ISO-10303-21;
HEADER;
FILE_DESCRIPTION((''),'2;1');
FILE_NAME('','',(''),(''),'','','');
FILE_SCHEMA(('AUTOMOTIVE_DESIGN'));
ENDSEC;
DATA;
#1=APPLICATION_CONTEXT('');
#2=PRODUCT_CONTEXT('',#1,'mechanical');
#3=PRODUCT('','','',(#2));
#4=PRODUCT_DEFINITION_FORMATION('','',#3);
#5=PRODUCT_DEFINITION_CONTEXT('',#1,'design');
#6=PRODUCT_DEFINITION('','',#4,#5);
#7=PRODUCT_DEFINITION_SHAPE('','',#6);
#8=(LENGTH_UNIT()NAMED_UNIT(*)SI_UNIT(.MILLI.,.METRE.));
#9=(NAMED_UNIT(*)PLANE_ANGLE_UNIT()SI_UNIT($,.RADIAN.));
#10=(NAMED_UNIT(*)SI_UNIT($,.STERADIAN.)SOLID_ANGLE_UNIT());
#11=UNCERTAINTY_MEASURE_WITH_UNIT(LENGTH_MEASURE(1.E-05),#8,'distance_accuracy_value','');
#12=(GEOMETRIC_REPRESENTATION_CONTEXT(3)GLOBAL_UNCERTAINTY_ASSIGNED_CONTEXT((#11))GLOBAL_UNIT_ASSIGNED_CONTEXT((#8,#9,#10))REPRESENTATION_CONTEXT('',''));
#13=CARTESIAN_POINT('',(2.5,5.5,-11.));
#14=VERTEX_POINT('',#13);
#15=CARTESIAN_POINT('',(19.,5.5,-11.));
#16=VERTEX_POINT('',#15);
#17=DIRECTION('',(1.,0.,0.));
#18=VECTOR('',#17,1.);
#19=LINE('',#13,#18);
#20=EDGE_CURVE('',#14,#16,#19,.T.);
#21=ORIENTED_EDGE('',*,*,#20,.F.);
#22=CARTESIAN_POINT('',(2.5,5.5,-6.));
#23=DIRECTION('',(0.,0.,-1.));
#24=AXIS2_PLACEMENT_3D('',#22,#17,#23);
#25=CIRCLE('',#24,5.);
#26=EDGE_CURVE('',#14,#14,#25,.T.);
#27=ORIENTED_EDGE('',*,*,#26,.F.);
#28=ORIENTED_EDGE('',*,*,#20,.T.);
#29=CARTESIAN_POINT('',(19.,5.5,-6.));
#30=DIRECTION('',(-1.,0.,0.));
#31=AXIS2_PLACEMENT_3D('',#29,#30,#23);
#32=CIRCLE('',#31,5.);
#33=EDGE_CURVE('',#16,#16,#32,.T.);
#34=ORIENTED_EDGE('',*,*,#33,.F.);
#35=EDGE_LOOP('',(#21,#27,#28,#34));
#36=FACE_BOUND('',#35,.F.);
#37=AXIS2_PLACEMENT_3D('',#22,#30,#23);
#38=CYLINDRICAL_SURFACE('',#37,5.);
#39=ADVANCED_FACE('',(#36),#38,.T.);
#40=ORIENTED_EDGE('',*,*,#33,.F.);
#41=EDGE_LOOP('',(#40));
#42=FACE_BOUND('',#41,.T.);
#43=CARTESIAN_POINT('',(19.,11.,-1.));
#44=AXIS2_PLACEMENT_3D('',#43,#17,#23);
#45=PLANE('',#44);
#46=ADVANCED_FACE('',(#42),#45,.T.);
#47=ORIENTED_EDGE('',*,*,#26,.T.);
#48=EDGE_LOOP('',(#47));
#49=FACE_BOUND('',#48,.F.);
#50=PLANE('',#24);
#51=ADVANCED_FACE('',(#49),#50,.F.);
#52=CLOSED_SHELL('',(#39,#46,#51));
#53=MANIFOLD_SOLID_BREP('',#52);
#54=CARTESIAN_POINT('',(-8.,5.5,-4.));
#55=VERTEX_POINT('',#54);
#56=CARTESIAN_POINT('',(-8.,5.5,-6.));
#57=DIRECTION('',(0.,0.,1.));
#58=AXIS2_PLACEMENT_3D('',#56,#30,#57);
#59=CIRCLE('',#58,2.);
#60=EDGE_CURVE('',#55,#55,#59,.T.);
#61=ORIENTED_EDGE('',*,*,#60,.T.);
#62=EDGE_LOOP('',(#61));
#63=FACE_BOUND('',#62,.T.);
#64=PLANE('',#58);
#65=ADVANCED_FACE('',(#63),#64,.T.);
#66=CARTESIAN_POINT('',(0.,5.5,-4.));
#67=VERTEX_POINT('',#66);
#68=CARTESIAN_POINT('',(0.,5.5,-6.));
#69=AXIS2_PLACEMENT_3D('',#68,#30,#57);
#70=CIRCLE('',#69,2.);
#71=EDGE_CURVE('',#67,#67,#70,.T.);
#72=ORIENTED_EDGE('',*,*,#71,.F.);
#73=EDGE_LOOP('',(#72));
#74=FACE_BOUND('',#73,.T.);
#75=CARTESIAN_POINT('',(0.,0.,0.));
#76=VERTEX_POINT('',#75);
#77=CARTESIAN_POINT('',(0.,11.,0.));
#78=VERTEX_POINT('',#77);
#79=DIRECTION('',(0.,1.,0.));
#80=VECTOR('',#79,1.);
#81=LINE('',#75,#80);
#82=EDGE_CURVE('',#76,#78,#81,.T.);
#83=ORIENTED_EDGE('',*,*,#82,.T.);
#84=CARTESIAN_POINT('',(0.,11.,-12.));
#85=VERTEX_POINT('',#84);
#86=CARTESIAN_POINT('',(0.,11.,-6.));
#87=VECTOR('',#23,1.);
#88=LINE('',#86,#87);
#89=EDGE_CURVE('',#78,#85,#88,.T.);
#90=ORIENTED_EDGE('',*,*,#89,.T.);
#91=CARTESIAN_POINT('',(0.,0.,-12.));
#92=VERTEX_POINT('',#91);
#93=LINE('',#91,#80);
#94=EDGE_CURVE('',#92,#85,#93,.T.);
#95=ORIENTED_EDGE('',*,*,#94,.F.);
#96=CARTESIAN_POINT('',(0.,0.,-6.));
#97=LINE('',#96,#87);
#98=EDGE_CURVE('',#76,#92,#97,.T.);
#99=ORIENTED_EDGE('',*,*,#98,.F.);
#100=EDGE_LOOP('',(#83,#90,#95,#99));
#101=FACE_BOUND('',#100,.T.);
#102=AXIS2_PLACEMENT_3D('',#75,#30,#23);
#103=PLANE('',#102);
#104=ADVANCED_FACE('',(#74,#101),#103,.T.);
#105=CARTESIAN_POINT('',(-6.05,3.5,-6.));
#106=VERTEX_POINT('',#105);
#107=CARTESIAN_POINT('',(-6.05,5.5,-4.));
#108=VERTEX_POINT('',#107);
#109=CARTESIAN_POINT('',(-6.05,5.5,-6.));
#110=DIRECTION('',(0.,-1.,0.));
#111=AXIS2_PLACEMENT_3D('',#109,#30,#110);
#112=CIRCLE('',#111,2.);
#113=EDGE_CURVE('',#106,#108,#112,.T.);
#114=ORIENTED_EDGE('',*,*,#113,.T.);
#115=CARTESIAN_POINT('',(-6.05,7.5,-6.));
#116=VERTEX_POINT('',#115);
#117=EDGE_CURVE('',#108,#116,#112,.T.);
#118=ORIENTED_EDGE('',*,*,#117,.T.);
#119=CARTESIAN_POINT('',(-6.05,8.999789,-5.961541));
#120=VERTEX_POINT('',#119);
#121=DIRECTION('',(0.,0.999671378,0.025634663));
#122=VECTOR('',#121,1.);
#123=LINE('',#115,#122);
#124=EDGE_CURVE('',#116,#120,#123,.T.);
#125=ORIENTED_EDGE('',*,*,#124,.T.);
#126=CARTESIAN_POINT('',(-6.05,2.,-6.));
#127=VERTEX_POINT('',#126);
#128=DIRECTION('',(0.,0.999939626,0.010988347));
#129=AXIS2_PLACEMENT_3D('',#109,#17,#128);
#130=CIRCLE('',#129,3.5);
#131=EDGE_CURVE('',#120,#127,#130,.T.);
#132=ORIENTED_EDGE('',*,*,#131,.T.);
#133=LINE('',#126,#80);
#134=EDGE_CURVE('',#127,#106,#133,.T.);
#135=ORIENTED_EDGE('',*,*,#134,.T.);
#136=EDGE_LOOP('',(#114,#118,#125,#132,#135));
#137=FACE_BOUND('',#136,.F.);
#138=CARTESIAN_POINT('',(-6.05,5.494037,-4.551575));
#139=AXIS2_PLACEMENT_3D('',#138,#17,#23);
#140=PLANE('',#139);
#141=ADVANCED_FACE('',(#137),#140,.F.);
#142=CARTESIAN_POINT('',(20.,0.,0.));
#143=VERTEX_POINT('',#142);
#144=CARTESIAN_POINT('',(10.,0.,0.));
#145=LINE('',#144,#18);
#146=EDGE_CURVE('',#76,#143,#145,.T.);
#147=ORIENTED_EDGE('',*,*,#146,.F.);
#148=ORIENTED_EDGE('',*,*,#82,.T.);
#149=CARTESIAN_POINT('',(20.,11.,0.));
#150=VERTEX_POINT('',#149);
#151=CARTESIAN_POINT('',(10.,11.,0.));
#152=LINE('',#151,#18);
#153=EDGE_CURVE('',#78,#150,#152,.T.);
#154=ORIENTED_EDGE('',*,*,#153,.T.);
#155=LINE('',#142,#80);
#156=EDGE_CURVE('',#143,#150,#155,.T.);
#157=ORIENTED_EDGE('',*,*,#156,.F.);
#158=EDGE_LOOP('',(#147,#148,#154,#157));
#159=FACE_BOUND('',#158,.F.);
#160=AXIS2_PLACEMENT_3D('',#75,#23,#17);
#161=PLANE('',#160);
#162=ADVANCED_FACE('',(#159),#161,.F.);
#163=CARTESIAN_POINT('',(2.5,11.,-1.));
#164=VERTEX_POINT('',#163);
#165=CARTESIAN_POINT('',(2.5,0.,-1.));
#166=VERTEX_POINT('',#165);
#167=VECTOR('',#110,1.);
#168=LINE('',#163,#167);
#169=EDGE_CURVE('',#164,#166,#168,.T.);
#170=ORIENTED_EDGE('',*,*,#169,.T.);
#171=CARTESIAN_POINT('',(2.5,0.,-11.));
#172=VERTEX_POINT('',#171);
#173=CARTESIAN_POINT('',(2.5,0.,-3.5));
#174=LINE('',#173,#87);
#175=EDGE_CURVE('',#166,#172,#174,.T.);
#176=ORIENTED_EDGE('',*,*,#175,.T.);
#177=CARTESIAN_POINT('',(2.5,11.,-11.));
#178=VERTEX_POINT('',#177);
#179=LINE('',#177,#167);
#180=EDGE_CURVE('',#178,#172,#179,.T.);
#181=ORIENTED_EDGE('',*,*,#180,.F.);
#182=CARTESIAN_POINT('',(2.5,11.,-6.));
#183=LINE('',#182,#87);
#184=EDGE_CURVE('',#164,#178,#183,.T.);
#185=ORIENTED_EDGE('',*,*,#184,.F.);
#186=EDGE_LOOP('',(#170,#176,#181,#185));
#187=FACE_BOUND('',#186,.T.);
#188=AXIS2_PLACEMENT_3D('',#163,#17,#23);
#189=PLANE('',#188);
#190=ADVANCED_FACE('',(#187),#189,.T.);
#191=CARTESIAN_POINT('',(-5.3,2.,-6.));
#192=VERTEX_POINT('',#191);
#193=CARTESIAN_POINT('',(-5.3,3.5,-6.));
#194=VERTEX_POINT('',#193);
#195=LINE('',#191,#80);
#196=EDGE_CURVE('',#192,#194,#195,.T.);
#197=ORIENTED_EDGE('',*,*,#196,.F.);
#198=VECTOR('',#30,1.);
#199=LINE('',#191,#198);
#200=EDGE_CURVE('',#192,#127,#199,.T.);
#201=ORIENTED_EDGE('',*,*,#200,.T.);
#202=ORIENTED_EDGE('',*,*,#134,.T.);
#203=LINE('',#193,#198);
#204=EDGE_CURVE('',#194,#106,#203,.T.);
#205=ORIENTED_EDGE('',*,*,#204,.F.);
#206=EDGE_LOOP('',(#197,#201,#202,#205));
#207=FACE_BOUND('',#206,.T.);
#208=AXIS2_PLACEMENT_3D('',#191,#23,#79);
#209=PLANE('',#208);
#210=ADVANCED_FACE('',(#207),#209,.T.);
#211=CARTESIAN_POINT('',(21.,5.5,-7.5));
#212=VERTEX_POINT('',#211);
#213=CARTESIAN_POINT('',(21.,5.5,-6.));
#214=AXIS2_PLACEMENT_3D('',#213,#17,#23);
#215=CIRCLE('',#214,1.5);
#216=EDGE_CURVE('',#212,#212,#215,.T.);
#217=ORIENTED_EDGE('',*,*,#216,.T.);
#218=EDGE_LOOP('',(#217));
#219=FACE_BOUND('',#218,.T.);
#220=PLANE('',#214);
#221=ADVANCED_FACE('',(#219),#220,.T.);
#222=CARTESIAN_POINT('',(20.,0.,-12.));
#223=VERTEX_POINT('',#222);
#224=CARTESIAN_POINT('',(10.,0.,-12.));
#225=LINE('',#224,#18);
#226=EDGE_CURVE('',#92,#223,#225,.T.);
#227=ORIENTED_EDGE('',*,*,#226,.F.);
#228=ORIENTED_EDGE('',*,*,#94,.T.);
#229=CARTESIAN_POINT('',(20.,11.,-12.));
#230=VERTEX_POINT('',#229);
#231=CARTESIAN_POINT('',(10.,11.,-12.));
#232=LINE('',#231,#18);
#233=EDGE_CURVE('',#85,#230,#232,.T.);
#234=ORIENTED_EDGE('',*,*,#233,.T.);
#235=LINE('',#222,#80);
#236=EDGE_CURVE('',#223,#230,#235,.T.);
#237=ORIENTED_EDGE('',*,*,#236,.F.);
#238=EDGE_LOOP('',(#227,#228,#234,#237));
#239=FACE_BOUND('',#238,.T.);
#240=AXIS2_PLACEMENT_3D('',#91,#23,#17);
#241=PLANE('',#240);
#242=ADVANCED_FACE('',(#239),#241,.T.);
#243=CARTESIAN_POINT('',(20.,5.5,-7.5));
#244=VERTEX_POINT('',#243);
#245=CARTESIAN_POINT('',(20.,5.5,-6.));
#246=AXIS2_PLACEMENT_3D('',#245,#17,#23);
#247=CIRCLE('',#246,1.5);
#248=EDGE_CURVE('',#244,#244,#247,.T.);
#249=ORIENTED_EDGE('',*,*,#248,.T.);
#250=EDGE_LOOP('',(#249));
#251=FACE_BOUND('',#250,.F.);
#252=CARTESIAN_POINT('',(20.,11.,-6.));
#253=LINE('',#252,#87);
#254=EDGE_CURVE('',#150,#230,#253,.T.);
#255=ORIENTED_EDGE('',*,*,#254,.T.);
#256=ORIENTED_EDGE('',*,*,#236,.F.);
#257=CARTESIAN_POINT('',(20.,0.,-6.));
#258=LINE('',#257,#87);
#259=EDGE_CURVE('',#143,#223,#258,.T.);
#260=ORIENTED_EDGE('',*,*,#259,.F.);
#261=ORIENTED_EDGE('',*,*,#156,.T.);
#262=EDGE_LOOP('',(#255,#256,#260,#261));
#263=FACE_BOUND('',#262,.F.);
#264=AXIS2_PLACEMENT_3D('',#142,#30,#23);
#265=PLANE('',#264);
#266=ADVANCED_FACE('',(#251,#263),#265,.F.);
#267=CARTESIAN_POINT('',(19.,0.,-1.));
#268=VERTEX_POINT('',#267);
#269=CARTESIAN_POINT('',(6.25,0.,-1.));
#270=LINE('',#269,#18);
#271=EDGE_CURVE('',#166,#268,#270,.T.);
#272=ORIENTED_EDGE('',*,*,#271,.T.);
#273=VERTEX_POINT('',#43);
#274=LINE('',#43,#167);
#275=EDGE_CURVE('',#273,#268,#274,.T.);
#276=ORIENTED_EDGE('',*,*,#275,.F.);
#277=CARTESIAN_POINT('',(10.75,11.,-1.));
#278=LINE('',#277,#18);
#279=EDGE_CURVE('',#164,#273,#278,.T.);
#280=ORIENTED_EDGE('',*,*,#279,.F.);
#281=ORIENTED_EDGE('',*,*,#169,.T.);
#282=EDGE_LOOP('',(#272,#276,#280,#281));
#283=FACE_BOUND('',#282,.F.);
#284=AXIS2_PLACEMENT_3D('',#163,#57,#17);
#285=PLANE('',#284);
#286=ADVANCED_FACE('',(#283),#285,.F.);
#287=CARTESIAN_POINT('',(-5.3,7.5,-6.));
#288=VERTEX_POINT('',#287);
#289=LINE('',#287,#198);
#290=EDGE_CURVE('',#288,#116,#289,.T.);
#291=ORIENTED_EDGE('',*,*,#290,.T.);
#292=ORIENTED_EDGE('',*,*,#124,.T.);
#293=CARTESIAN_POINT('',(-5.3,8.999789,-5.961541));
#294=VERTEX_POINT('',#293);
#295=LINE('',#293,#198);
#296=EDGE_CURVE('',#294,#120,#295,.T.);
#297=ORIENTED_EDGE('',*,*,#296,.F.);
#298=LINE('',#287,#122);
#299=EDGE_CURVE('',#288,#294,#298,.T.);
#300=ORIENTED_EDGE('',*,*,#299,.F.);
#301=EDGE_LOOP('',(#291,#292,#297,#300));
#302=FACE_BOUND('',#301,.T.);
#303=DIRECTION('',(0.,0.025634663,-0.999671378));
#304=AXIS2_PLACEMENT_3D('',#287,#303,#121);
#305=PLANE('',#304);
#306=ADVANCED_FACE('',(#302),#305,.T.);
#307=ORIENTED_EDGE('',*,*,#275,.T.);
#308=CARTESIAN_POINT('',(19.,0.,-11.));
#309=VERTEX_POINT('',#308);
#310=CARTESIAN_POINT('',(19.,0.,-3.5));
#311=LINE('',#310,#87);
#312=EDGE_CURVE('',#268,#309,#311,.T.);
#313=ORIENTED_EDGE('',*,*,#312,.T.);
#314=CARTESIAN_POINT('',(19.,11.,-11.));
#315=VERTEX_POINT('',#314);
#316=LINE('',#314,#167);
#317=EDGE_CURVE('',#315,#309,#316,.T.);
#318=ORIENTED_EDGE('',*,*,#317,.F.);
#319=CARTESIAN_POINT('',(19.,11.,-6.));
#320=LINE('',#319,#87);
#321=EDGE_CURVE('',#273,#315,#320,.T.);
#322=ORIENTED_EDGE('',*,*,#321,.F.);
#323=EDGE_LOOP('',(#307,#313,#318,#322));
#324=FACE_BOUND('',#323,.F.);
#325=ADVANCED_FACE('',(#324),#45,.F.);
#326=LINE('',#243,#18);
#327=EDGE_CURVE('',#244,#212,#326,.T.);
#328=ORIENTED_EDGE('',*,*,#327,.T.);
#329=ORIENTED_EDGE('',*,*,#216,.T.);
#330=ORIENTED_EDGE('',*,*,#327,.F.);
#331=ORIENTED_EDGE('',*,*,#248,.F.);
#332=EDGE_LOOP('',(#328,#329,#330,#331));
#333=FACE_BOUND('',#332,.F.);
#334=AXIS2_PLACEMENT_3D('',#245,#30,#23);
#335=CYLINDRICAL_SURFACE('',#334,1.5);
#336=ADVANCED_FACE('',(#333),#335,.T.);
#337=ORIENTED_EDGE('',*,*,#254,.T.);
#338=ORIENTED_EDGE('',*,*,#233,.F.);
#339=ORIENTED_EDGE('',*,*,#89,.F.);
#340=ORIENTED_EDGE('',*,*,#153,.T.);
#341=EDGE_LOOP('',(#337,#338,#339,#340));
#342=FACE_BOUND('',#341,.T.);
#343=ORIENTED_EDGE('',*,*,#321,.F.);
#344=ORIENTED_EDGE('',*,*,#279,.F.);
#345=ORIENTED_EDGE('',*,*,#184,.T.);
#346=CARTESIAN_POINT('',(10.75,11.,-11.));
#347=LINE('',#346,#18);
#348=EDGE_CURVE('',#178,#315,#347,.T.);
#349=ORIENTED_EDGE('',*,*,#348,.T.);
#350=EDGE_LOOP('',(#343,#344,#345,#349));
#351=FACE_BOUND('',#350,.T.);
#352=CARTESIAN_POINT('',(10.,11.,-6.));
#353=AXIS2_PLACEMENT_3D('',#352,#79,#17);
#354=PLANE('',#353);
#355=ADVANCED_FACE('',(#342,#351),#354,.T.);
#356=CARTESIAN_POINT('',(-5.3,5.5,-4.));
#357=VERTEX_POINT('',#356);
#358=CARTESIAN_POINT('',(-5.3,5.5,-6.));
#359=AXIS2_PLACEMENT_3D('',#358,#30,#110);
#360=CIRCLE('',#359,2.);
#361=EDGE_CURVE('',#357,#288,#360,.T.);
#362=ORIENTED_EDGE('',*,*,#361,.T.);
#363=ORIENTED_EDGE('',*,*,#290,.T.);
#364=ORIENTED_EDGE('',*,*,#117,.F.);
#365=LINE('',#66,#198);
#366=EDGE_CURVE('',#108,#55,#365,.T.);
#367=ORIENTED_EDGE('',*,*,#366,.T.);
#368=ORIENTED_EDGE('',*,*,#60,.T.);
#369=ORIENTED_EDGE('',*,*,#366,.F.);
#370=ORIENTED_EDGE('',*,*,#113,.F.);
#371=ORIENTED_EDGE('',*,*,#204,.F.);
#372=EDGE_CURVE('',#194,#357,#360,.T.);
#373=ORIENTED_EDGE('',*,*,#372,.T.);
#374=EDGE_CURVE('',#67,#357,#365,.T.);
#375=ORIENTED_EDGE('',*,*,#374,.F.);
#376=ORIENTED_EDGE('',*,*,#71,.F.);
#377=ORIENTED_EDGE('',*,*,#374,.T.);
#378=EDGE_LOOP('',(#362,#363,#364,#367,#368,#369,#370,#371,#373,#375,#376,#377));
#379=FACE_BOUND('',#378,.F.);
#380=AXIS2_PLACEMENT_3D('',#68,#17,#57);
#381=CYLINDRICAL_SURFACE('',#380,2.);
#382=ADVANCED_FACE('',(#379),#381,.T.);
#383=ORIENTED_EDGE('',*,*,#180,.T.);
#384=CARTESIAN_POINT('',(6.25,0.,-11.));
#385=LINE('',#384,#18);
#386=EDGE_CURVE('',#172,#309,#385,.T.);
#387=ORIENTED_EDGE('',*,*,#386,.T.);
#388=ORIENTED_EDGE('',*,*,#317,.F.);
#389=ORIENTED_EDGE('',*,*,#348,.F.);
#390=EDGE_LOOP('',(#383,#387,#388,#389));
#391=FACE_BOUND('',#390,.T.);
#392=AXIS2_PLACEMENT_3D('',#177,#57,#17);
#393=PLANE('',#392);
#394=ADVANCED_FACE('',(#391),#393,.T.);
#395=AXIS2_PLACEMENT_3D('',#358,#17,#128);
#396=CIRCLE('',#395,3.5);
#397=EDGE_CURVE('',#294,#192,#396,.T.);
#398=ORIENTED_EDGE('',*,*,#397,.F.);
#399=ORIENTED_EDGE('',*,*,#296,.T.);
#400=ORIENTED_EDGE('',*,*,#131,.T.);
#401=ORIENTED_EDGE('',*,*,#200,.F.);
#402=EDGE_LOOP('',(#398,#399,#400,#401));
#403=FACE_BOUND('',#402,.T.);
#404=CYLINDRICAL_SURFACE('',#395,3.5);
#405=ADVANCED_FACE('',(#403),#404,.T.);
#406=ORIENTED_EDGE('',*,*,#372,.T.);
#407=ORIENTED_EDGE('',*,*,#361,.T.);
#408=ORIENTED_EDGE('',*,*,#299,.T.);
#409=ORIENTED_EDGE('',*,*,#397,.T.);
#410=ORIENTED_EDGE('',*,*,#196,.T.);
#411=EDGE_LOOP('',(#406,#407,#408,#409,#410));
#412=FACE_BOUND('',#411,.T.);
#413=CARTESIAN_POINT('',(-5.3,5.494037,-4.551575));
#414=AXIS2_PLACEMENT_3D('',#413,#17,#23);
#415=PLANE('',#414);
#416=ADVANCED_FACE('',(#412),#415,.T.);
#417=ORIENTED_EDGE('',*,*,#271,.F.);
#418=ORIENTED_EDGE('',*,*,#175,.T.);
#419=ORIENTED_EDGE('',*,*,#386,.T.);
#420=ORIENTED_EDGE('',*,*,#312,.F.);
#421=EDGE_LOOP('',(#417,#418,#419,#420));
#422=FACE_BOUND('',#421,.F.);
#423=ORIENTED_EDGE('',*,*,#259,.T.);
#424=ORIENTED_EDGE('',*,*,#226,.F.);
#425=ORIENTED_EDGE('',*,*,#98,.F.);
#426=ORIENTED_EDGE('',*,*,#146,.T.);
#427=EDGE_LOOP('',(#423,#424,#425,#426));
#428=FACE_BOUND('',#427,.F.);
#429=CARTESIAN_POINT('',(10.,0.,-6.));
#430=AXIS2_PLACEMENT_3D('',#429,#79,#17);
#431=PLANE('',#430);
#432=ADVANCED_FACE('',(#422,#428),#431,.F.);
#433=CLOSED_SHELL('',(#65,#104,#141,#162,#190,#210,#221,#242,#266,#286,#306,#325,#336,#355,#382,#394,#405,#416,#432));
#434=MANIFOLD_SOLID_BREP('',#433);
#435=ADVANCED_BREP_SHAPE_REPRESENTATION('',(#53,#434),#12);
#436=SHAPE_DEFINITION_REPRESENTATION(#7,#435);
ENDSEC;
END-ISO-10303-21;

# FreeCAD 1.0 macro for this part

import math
import FreeCAD as App
import Part
import Sketcher
from FreeCAD import Vector
Q = App.Units.Quantity

doc = App.newDocument("Part")
body = doc.addObject("PartDesign::Body", "Body")

sketch1 = doc.addObject("Sketcher::SketchObject", "Sketch")
body.addObject(sketch1)
sketch1.AttachmentSupport = (doc.XZ_Plane, [""])
sketch1.MapMode = "FlatFace"
sketch1.addGeometry([
    Part.LineSegment(Vector(0, -12, 0), Vector(0, 0, 0)),
    Part.LineSegment(Vector(0, 0, 0), Vector(20, 0, 0)),
    Part.LineSegment(Vector(20, 0, 0), Vector(20, -12, 0)),
    Part.LineSegment(Vector(20, -12, 0), Vector(0, -12, 0)),
], False)
sketch1.addConstraint([
    Sketcher.Constraint("Coincident", 0, 2, 1, 1),
    Sketcher.Constraint("Coincident", 1, 2, 2, 1),
    Sketcher.Constraint("Coincident", 2, 2, 3, 1),
    Sketcher.Constraint("Coincident", 3, 2, 0, 1),
    Sketcher.Constraint("Vertical", 0),
    Sketcher.Constraint("Horizontal", 1),
    Sketcher.Constraint("Vertical", 2),
    Sketcher.Constraint("Horizontal", 3),
    Sketcher.Constraint("Coincident", 0, 2, -1, 1),
    Sketcher.Constraint("DistanceX", 1, 1, 1, 2, Q("20 mm")),
    Sketcher.Constraint("DistanceY", 0, 1, 0, 2, Q("12 mm")),
])
pad1 = doc.addObject("PartDesign::Pad", "Pad")
body.addObject(pad1)
pad1.Profile = sketch1
pad1.Length = 11
pad1.Reversed = True

sketch2 = doc.addObject("Sketcher::SketchObject", "Sketch001")
body.addObject(sketch2)
sketch2.AttachmentSupport = (doc.XZ_Plane, [""])
sketch2.MapMode = "FlatFace"
sketch2.AttachmentOffset = App.Placement(Vector(0, 0, -11), App.Rotation())
sketch2.addGeometry([
    Part.LineSegment(Vector(2, -11, 0), Vector(2, -1, 0)),
    Part.LineSegment(Vector(2, -1, 0), Vector(19, -1, 0)),
    Part.LineSegment(Vector(19, -1, 0), Vector(19, -11, 0)),
    Part.LineSegment(Vector(19, -11, 0), Vector(2, -11, 0)),
], False)
sketch2.addConstraint([
    Sketcher.Constraint("Coincident", 0, 2, 1, 1),
    Sketcher.Constraint("Coincident", 1, 2, 2, 1),
    Sketcher.Constraint("Coincident", 2, 2, 3, 1),
    Sketcher.Constraint("Coincident", 3, 2, 0, 1),
    Sketcher.Constraint("Vertical", 0),
    Sketcher.Constraint("Horizontal", 1),
    Sketcher.Constraint("Vertical", 2),
    Sketcher.Constraint("Horizontal", 3),
    Sketcher.Constraint("DistanceY", 0, 1, 0, 2, Q("10 mm")),
    Sketcher.Constraint("DistanceX", 1, 1, 1, 2, Q("16.5 mm")),
    Sketcher.Constraint("DistanceY", 0, 2, -1, 1, Q("1 mm")),
    Sketcher.Constraint("DistanceX", -1, 1, 1, 2, Q("19 mm")),
])
pocket1 = doc.addObject("PartDesign::Pocket", "Pocket")
body.addObject(pocket1)
pocket1.Profile = sketch2
pocket1.Type = "ThroughAll"
pocket1.Reversed = True
body2 = doc.addObject("PartDesign::Body", "Body001")

sketch3 = doc.addObject("Sketcher::SketchObject", "Sketch002")
body2.addObject(sketch3)
sketch3.AttachmentSupport = (doc.getObject("YZ_Plane001"), [""])
sketch3.MapMode = "FlatFace"
sketch3.AttachmentOffset = App.Placement(Vector(0, 0, 2.5), App.Rotation())
sketch3.addGeometry(Part.Circle(Vector(6, -6, 0), Vector(0, 0, 1), 5), False)
sketch3.addConstraint([
    Sketcher.Constraint("Diameter", 0, Q("10 mm")),
    Sketcher.Constraint("DistanceY", 0, 3, -1, 1, Q("6 mm")),
    Sketcher.Constraint("DistanceX", -1, 1, 0, 3, Q("5.5 mm")),
])
pad2 = doc.addObject("PartDesign::Pad", "Pad001")
body2.addObject(pad2)
pad2.Profile = sketch3
pad2.Length = 16.5

sketch4 = doc.addObject("Sketcher::SketchObject", "Sketch003")
body.addObject(sketch4)
sketch4.AttachmentSupport = (doc.YZ_Plane, [""])
sketch4.MapMode = "FlatFace"
sketch4.addGeometry(Part.Circle(Vector(5.5, -6, 0), Vector(0, 0, 1), 2), False)
sketch4.addConstraint([
    Sketcher.Constraint("Diameter", 0, Q("4 mm")),
    Sketcher.Constraint("DistanceY", 0, 3, -1, 1, Q("6 mm")),
    Sketcher.Constraint("DistanceX", -1, 1, 0, 3, Q("5.5 mm")),
])
pad3 = doc.addObject("PartDesign::Pad", "Pad002")
body.addObject(pad3)
pad3.Profile = sketch4
pad3.Length = 8
pad3.Reversed = True

sketch5 = doc.addObject("Sketcher::SketchObject", "Sketch004")
body.addObject(sketch5)
sketch5.AttachmentSupport = (doc.YZ_Plane, [""])
sketch5.MapMode = "FlatFace"
sketch5.AttachmentOffset = App.Placement(Vector(0, 0, 20), App.Rotation())
sketch5.addGeometry(Part.Circle(Vector(5.5, -6, 0), Vector(0, 0, 1), 1.5), False)
sketch5.addConstraint([
    Sketcher.Constraint("Diameter", 0, Q("3 mm")),
    Sketcher.Constraint("DistanceY", 0, 3, -1, 1, Q("6 mm")),
    Sketcher.Constraint("DistanceX", -1, 1, 0, 3, Q("5.5 mm")),
])
pad4 = doc.addObject("PartDesign::Pad", "Pad003")
body.addObject(pad4)
pad4.Profile = sketch5
pad4.Length = 1

sketch6 = doc.addObject("Sketcher::SketchObject", "Sketch005")
body.addObject(sketch6)
sketch6.AttachmentSupport = (doc.YZ_Plane, [""])
sketch6.MapMode = "FlatFace"
sketch6.AttachmentOffset = App.Placement(Vector(0, 0, -5.3), App.Rotation())
sketch6.addGeometry([
    Part.LineSegment(Vector(9, -6, 0), Vector(7.5, -6, 0)),
    Part.ArcOfCircle(Part.Circle(Vector(5.5, -6, 0), Vector(0, 0, 1), 2), math.radians(0), math.radians(180)),
    Part.LineSegment(Vector(3.5, -6, 0), Vector(2, -6, 0)),
    Part.ArcOfCircle(Part.Circle(Vector(5.5, -6, 0), Vector(0, 0, 1), 3.5), math.radians(1), math.radians(180)),
], False)
sketch6.addConstraint([
    Sketcher.Constraint("Coincident", 0, 2, 1, 1),
    Sketcher.Constraint("Coincident", 1, 2, 2, 1),
    Sketcher.Constraint("Coincident", 2, 2, 3, 2),
    Sketcher.Constraint("Coincident", 3, 1, 0, 1),
    Sketcher.Constraint("Horizontal", 2),
    Sketcher.Constraint("Coincident", 3, 3, 1, 3),
    Sketcher.Constraint("Horizontal", 3, 3, 0, 2),
    Sketcher.Constraint("Horizontal", 0, 2, 1, 2),
    Sketcher.Constraint("Radius", 1, Q("2 mm")),
    Sketcher.Constraint("Radius", 3, Q("3.5 mm")),
    Sketcher.Constraint("DistanceY", 1, 3, -1, 1, Q("6 mm")),
    Sketcher.Constraint("DistanceX", -1, 1, 2, 2, Q("2 mm")),
    Sketcher.Constraint("Distance", 0, Q("1.500282 mm")),
])
pad5 = doc.addObject("PartDesign::Pad", "Pad004")
body.addObject(pad5)
pad5.Profile = sketch6
pad5.Length = 0.75
pad5.Reversed = True

doc.recompute()
